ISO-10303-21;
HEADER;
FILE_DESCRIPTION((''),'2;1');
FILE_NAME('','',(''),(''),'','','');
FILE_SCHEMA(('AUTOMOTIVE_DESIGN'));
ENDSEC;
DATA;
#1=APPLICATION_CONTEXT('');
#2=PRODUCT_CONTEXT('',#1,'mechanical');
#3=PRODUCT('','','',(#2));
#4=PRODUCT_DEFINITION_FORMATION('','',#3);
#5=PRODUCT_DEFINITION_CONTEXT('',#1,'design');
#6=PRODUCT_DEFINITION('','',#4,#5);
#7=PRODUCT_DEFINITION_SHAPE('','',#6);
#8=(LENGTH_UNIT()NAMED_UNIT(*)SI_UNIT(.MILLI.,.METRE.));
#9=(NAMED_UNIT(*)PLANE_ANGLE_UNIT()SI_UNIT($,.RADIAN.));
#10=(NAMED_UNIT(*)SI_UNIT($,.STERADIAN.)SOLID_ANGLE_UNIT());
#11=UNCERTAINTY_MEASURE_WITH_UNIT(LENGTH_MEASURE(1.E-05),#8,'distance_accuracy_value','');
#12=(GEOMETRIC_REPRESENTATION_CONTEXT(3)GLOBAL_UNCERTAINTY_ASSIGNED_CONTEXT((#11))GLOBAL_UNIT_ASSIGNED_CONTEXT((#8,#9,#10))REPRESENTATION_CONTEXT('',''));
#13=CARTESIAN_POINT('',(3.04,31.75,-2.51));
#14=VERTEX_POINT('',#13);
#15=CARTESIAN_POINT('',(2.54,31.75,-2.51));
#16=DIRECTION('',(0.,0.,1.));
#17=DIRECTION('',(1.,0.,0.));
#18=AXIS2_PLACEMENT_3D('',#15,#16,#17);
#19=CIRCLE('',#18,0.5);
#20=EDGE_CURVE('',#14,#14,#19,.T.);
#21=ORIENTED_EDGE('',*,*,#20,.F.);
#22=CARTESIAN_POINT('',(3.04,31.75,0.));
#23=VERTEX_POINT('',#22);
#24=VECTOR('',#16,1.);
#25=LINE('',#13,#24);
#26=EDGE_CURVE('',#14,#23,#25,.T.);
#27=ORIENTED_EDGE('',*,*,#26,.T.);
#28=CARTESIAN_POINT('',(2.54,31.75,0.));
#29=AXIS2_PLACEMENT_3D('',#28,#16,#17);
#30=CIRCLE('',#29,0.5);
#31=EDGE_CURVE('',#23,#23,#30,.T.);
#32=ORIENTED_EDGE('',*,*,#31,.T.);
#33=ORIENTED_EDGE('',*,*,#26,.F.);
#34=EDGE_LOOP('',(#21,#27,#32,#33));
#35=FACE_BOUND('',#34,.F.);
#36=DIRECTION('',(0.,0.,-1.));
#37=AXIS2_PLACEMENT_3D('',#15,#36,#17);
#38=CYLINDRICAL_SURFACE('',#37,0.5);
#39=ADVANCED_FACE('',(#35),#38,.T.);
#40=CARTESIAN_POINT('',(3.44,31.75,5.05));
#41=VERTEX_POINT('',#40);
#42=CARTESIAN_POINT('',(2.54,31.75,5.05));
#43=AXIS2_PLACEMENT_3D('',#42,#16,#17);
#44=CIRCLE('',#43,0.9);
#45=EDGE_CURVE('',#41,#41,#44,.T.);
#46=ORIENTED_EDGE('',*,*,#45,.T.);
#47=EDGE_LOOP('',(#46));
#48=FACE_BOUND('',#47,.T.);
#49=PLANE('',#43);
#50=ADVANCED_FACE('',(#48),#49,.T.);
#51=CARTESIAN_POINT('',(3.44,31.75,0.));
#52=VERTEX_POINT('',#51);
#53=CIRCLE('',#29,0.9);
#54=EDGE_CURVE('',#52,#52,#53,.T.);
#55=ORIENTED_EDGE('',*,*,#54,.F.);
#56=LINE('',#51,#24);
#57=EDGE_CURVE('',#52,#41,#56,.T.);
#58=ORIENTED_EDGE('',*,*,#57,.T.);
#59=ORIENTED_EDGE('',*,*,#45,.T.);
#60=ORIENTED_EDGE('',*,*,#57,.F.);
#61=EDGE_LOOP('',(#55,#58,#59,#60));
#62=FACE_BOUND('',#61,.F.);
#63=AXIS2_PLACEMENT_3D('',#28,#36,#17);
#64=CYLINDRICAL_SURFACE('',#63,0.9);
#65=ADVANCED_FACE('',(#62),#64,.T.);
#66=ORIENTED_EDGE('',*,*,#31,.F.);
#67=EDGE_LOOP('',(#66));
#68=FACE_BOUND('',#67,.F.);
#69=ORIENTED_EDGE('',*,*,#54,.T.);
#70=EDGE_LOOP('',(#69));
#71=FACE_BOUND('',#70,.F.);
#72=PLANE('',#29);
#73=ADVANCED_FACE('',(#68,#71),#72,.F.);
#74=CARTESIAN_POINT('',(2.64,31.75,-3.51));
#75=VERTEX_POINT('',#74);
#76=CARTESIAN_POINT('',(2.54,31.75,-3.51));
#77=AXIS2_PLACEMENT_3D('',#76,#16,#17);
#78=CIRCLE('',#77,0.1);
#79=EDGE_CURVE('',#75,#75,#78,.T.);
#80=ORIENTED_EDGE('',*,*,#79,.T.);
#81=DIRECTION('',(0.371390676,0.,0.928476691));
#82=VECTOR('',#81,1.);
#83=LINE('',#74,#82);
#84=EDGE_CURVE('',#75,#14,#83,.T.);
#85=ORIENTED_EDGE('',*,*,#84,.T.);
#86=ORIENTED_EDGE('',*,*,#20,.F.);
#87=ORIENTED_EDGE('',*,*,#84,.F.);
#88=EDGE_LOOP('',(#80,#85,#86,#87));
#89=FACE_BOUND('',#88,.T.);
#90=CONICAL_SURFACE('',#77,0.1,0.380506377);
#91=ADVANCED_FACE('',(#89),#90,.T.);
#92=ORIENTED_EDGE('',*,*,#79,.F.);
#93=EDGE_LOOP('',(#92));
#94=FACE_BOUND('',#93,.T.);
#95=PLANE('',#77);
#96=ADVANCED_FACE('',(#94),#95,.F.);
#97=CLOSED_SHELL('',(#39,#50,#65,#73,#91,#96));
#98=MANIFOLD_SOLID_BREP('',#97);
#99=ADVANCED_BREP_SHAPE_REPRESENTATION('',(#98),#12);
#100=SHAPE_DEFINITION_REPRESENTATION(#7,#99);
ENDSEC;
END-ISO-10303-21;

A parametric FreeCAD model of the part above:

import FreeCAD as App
import Part
import Sketcher
from FreeCAD import Vector
Q = App.Units.Quantity


def add_polygon(sketch, points):
    """Adds a closed chain of lines whose ends are joined by coincident constraints."""
    first, n = sketch.GeometryCount, len(points)
    for a, b in zip(points, points[1:] + points[:1]):
        sketch.addGeometry(Part.LineSegment(App.Vector(*a, 0), App.Vector(*b, 0)), False)
    for i in range(n):
        sketch.addConstraint(Sketcher.Constraint("Coincident", first + i, 2, first + (i + 1) % n, 1))

doc = App.newDocument("Part")
body = doc.addObject("PartDesign::Body", "Body")

# Sketch on XY plane
sketch1 = body.newObject("Sketcher::SketchObject", "Sketch")
sketch1.AttachmentSupport = (doc.getObject("XY_Plane"), [""])
sketch1.MapMode = "FlatFace"
sketch1.AttachmentOffset = App.Placement(Vector(0, 0, -2.51), App.Rotation())
sketch1.addGeometry(Part.Circle(Vector(2.5, 0, 0), Vector(0, 0, 1), 0.5), False)
sketch1.addConstraint([
    Sketcher.Constraint("PointOnObject", 0, 3, -1),
    Sketcher.Constraint("Diameter", 0, Q("1 mm")),
    Sketcher.Constraint("DistanceX", -1, 1, 0, 3, Q("2.54 mm")),
])
pad1 = body.newObject("PartDesign::Pad", "Pad")
pad1.Profile = sketch1
pad1.Length = 2.51
body2 = doc.addObject("PartDesign::Body", "Body001")

# Sketch on XZ plane
sketch2 = body2.newObject("Sketcher::SketchObject", "Sketch001")
sketch2.AttachmentSupport = (doc.getObject("XZ_Plane001"), [""])
sketch2.MapMode = "FlatFace"
add_polygon(sketch2, [(2.54, -3.51), (2.64, -3.51), (3.04, -2.51), (2.54, -2.51)])  # lines 0-3
sketch2.addGeometry(Part.LineSegment(Vector(2.54, -3.51, 0), Vector(2.54, -2.51, 0)), True)  # axis
sketch2.addConstraint([
    Sketcher.Constraint("Horizontal", 0),
    Sketcher.Constraint("Horizontal", 2),
    Sketcher.Constraint("Vertical", 3),
    Sketcher.Constraint("Vertical", 4),
    Sketcher.Constraint("Coincident", 4, 1, 3, 2),
    Sketcher.Constraint("Horizontal", 1, 2, 4, 2),
    Sketcher.Constraint("DistanceY", 3, 2, 3, 1, Q("1 mm")),
    Sketcher.Constraint("DistanceX", 0, 1, 0, 2, Q("0.1 mm")),
    Sketcher.Constraint("DistanceX", 2, 2, 2, 1, Q("0.5 mm")),
    Sketcher.Constraint("DistanceX", -1, 1, 0, 2, Q("2.64 mm")),
    Sketcher.Constraint("DistanceY", 0, 2, -1, 1, Q("3.51 mm")),
])
revolution = body2.newObject("PartDesign::Revolution", "Revolution")
revolution.Profile = sketch2
revolution.ReferenceAxis = (sketch2, ["Axis0"])
revolution.Angle = 360
body3 = doc.addObject("PartDesign::Body", "Body002")

# Sketch on XY plane
sketch3 = body3.newObject("Sketcher::SketchObject", "Sketch002")
sketch3.AttachmentSupport = (doc.getObject("XY_Plane002"), [""])
sketch3.MapMode = "FlatFace"
sketch3.addGeometry(Part.Circle(Vector(2.5, 0, 0), Vector(0, 0, 1), 0.9), False)
sketch3.addConstraint([
    Sketcher.Constraint("PointOnObject", 0, 3, -1),
    Sketcher.Constraint("Diameter", 0, Q("1.8 mm")),
    Sketcher.Constraint("DistanceX", -1, 1, 0, 3, Q("2.54 mm")),
])
pad2 = body3.newObject("PartDesign::Pad", "Pad001")
pad2.Profile = sketch3
pad2.Length = 5.05
doc.recompute()

boolean = body3.newObject("PartDesign::Boolean", "Boolean")
boolean.Type = "Fuse"
boolean.addObjects([body])
doc.recompute()

boolean2 = body3.newObject("PartDesign::Boolean", "Boolean001")
boolean2.Type = "Fuse"
boolean2.addObjects([body2])
body4 = doc.addObject("PartDesign::Body", "Body003")
doc.recompute()

body3.Placement = App.Placement(Vector(0, 31.75, 0), App.Rotation(Vector(0, 0, 1), 0))
boolean3 = body4.newObject("PartDesign::Boolean", "Boolean002")
boolean3.Type = "Fuse"
boolean3.addObjects([body3])

doc.recompute()
